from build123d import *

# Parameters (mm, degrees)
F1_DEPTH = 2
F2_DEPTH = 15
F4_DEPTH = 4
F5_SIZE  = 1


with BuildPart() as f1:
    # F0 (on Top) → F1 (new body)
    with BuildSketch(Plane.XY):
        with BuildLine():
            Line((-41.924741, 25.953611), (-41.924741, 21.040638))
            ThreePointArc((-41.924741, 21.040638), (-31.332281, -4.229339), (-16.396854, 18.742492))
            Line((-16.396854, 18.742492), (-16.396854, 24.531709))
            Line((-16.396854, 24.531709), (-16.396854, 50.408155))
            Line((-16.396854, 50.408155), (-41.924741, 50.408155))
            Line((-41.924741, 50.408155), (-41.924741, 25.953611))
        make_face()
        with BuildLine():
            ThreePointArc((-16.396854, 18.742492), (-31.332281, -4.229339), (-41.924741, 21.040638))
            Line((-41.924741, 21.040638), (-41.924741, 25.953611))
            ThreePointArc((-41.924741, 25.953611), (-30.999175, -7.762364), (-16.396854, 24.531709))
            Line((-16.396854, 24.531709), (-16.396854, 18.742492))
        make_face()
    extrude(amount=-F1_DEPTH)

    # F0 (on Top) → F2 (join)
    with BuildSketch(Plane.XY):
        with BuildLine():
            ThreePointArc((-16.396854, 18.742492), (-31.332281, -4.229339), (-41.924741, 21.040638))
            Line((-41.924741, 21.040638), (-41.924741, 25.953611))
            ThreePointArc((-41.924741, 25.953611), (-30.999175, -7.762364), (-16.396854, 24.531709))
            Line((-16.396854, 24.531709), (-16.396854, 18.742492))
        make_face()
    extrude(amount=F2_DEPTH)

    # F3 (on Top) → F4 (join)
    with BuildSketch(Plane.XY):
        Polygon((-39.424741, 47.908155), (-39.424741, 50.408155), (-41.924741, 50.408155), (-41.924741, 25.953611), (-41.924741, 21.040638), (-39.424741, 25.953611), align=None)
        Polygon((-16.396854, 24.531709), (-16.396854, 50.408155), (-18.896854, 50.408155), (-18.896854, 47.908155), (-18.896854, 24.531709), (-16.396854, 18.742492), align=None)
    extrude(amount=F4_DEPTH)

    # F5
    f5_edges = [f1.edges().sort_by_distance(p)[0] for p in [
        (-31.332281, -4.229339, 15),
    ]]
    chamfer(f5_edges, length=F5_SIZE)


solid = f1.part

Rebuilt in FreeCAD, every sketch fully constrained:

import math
import FreeCAD as App
import Part
import Sketcher
from FreeCAD import Vector
Q = App.Units.Quantity


def edges_at(feature, points):
    """Names of the edges that pass closest to the given points."""
    edges = feature.Shape.Edges
    near = lambda p: min(range(len(edges)), key=lambda i: edges[i].distToShape(Part.Vertex(*p))[0])
    return sorted({f"Edge{near(p) + 1}" for p in points})


def add_polygon(sketch, points):
    """Adds a closed chain of lines whose ends are joined by coincident constraints."""
    first, n = sketch.GeometryCount, len(points)
    for a, b in zip(points, points[1:] + points[:1]):
        sketch.addGeometry(Part.LineSegment(App.Vector(*a, 0), App.Vector(*b, 0)), False)
    for i in range(n):
        sketch.addConstraint(Sketcher.Constraint("Coincident", first + i, 2, first + (i + 1) % n, 1))

doc = App.newDocument("Part")
params = doc.addObject("Spreadsheet::Sheet", "Params")
for row, (alias, value) in enumerate([
    ("sketch1_radius", "19 mm"),
    ("pad1_length", "2 mm"),
    ("sketch2_radius", "19 mm"),
    ("sketch2_radius2", "15.5 mm"),
    ("pad2_length", "15 mm"),
    ("sketch3_width", "2.5 mm"),
    ("pad3_length", "4 mm"),
    ("chamfer_size", "1 mm"),
], start=1):
    params.set(f"A{row}", alias)
    params.set(f"B{row}", "=" + value)
    params.setAlias(f"B{row}", alias)

body = doc.addObject("PartDesign::Body", "Body")

# Sketch on XY plane
sketch1 = doc.addObject("Sketcher::SketchObject", "Sketch")
body.addObject(sketch1)
sketch1.AttachmentSupport = (doc.XY_Plane, [""])
sketch1.MapMode = "FlatFace"
sketch1.addGeometry(Part.LineSegment(Vector(-16, 25, 0), Vector(-16, 50, 0)), False)
sketch1.addGeometry(Part.LineSegment(Vector(-16, 50, 0), Vector(-42, 50, 0)), False)
sketch1.addGeometry(Part.LineSegment(Vector(-42, 50, 0), Vector(-42, 26, 0)), False)
sketch1.addGeometry(Part.ArcOfCircle(Part.Circle(Vector(-30, 11, 0), Vector(0, 0, 1), 19), math.radians(129), math.radians(405)), False)
sketch1.addConstraint(Sketcher.Constraint("Coincident", 0, 2, 1, 1))
sketch1.addConstraint(Sketcher.Constraint("Coincident", 1, 2, 2, 1))
sketch1.addConstraint(Sketcher.Constraint("Coincident", 2, 2, 3, 1))
sketch1.addConstraint(Sketcher.Constraint("Coincident", 3, 2, 0, 1))
sketch1.addConstraint(Sketcher.Constraint("Vertical", 0))
sketch1.addConstraint(Sketcher.Constraint("Horizontal", 1))
sketch1.addConstraint(Sketcher.Constraint("Vertical", 2))
sketch1.addConstraint(Sketcher.Constraint("Radius", 3, Q("19 mm")))
sketch1.addConstraint(Sketcher.Constraint("DistanceY", 3, 2, 2, 2, Q("1.421902 mm")))
sketch1.addConstraint(Sketcher.Constraint("DistanceX", 1, 2, 1, 1, Q("25.527887 mm")))
sketch1.addConstraint(Sketcher.Constraint("DistanceY", 0, 1, 0, 2, Q("25.876446 mm")))
sketch1.addConstraint(Sketcher.Constraint("DistanceY", -1, 1, 3, 3, Q("11.208231 mm")))
sketch1.addConstraint(Sketcher.Constraint("DistanceX", 1, 2, -1, 1, Q("41.924741 mm")))
sketch1.setExpression("Constraints[7]", "Params.sketch1_radius")
pad1 = doc.addObject("PartDesign::Pad", "Pad")
body.addObject(pad1)
pad1.Profile = sketch1
pad1.setExpression("Length", "Params.pad1_length")
pad1.Reversed = True

# Sketch on XY plane
sketch2 = doc.addObject("Sketcher::SketchObject", "Sketch001")
body.addObject(sketch2)
sketch2.AttachmentSupport = (doc.XY_Plane, [""])
sketch2.MapMode = "FlatFace"
sketch2.addGeometry(Part.ArcOfCircle(Part.Circle(Vector(-29.9, 11.2, 0), Vector(0, 0, 1), 15.5), math.radians(141), math.radians(389)), False)
sketch2.addGeometry(Part.LineSegment(Vector(-41.9, 21, 0), Vector(-41.9, 26, 0)), False)
sketch2.addGeometry(Part.ArcOfCircle(Part.Circle(Vector(-29.9, 11.2, 0), Vector(0, 0, 1), 19), math.radians(129), math.radians(405)), False)
sketch2.addGeometry(Part.LineSegment(Vector(-16.4, 24.5, 0), Vector(-16.4, 18.7, 0)), False)
sketch2.addConstraint(Sketcher.Constraint("Coincident", 0, 1, 1, 1))
sketch2.addConstraint(Sketcher.Constraint("Coincident", 1, 2, 2, 1))
sketch2.addConstraint(Sketcher.Constraint("Coincident", 2, 2, 3, 1))
sketch2.addConstraint(Sketcher.Constraint("Coincident", 3, 2, 0, 2))
sketch2.addConstraint(Sketcher.Constraint("Vertical", 1))
sketch2.addConstraint(Sketcher.Constraint("Vertical", 3))
sketch2.addConstraint(Sketcher.Constraint("Coincident", 2, 3, 0, 3))
sketch2.addConstraint(Sketcher.Constraint("Radius", 2, Q("19 mm")))
sketch2.addConstraint(Sketcher.Constraint("Radius", 0, Q("15.5 mm")))
sketch2.addConstraint(Sketcher.Constraint("DistanceY", 2, 2, 1, 2, Q("1.421902 mm")))
sketch2.addConstraint(Sketcher.Constraint("DistanceY", 1, 1, 1, 2, Q("4.912973 mm")))
sketch2.addConstraint(Sketcher.Constraint("DistanceY", -1, 1, 0, 3, Q("11.20823 mm")))
sketch2.addConstraint(Sketcher.Constraint("DistanceX", 0, 1, -1, 1, Q("41.924741 mm")))
sketch2.setExpression("Constraints[7]", "Params.sketch2_radius")
sketch2.setExpression("Constraints[8]", "Params.sketch2_radius2")
pad2 = doc.addObject("PartDesign::Pad", "Pad001")
body.addObject(pad2)
pad2.Profile = sketch2
pad2.setExpression("Length", "Params.pad2_length")

# Sketch on XY plane
sketch3 = doc.addObject("Sketcher::SketchObject", "Sketch002")
body.addObject(sketch3)
sketch3.AttachmentSupport = (doc.XY_Plane, [""])
sketch3.MapMode = "FlatFace"
add_polygon(sketch3, [(-39.4, 50.4), (-41.9, 50.4), (-41.9, 21), (-39.4, 26)])  # lines 0-3
add_polygon(sketch3, [(-16.4, 50.4), (-18.9, 50.4), (-18.9, 24.5), (-16.4, 18.7)])  # lines 4-7
sketch3.addConstraint(Sketcher.Constraint("Horizontal", 0))
sketch3.addConstraint(Sketcher.Constraint("Vertical", 1))
sketch3.addConstraint(Sketcher.Constraint("Vertical", 3))
sketch3.addConstraint(Sketcher.Constraint("Horizontal", 4))
sketch3.addConstraint(Sketcher.Constraint("Vertical", 5))
sketch3.addConstraint(Sketcher.Constraint("Vertical", 7))
sketch3.addConstraint(Sketcher.Constraint("Horizontal", 3, 2, 4, 2))
sketch3.addConstraint(Sketcher.Constraint("Equal", 0, 4))
sketch3.addConstraint(Sketcher.Constraint("DistanceX", 0, 2, 0, 1, Q("2.5 mm")))
sketch3.addConstraint(Sketcher.Constraint("DistanceY", 5, 2, 2, 2, Q("1.421902 mm")))
sketch3.addConstraint(Sketcher.Constraint("Distance", 2, Q("5.512468 mm")))
sketch3.addConstraint(Sketcher.Constraint("DistanceY", 1, 2, 1, 1, Q("29.367517 mm")))
sketch3.addConstraint(Sketcher.Constraint("DistanceY", 7, 1, 7, 2, Q("31.665663 mm")))
sketch3.addConstraint(Sketcher.Constraint("DistanceX", 0, 2, -1, 1, Q("41.924741 mm")))
sketch3.addConstraint(Sketcher.Constraint("DistanceY", -1, 1, 1, 2, Q("21.040638 mm")))
sketch3.addConstraint(Sketcher.Constraint("DistanceX", 4, 2, -1, 1, Q("18.896854 mm")))
sketch3.setExpression("Constraints[16]", "Params.sketch3_width")
pad3 = doc.addObject("PartDesign::Pad", "Pad002")
body.addObject(pad3)
pad3.Profile = sketch3
pad3.setExpression("Length", "Params.pad3_length")
doc.recompute()

chamfer = doc.addObject("PartDesign::Chamfer", "Chamfer")
body.addObject(chamfer)
chamfer.Base = (pad3, edges_at(pad3, [(-31.332, -4.229, 15)]))
chamfer.setExpression("Size", "Params.chamfer_size")

doc.recompute()
